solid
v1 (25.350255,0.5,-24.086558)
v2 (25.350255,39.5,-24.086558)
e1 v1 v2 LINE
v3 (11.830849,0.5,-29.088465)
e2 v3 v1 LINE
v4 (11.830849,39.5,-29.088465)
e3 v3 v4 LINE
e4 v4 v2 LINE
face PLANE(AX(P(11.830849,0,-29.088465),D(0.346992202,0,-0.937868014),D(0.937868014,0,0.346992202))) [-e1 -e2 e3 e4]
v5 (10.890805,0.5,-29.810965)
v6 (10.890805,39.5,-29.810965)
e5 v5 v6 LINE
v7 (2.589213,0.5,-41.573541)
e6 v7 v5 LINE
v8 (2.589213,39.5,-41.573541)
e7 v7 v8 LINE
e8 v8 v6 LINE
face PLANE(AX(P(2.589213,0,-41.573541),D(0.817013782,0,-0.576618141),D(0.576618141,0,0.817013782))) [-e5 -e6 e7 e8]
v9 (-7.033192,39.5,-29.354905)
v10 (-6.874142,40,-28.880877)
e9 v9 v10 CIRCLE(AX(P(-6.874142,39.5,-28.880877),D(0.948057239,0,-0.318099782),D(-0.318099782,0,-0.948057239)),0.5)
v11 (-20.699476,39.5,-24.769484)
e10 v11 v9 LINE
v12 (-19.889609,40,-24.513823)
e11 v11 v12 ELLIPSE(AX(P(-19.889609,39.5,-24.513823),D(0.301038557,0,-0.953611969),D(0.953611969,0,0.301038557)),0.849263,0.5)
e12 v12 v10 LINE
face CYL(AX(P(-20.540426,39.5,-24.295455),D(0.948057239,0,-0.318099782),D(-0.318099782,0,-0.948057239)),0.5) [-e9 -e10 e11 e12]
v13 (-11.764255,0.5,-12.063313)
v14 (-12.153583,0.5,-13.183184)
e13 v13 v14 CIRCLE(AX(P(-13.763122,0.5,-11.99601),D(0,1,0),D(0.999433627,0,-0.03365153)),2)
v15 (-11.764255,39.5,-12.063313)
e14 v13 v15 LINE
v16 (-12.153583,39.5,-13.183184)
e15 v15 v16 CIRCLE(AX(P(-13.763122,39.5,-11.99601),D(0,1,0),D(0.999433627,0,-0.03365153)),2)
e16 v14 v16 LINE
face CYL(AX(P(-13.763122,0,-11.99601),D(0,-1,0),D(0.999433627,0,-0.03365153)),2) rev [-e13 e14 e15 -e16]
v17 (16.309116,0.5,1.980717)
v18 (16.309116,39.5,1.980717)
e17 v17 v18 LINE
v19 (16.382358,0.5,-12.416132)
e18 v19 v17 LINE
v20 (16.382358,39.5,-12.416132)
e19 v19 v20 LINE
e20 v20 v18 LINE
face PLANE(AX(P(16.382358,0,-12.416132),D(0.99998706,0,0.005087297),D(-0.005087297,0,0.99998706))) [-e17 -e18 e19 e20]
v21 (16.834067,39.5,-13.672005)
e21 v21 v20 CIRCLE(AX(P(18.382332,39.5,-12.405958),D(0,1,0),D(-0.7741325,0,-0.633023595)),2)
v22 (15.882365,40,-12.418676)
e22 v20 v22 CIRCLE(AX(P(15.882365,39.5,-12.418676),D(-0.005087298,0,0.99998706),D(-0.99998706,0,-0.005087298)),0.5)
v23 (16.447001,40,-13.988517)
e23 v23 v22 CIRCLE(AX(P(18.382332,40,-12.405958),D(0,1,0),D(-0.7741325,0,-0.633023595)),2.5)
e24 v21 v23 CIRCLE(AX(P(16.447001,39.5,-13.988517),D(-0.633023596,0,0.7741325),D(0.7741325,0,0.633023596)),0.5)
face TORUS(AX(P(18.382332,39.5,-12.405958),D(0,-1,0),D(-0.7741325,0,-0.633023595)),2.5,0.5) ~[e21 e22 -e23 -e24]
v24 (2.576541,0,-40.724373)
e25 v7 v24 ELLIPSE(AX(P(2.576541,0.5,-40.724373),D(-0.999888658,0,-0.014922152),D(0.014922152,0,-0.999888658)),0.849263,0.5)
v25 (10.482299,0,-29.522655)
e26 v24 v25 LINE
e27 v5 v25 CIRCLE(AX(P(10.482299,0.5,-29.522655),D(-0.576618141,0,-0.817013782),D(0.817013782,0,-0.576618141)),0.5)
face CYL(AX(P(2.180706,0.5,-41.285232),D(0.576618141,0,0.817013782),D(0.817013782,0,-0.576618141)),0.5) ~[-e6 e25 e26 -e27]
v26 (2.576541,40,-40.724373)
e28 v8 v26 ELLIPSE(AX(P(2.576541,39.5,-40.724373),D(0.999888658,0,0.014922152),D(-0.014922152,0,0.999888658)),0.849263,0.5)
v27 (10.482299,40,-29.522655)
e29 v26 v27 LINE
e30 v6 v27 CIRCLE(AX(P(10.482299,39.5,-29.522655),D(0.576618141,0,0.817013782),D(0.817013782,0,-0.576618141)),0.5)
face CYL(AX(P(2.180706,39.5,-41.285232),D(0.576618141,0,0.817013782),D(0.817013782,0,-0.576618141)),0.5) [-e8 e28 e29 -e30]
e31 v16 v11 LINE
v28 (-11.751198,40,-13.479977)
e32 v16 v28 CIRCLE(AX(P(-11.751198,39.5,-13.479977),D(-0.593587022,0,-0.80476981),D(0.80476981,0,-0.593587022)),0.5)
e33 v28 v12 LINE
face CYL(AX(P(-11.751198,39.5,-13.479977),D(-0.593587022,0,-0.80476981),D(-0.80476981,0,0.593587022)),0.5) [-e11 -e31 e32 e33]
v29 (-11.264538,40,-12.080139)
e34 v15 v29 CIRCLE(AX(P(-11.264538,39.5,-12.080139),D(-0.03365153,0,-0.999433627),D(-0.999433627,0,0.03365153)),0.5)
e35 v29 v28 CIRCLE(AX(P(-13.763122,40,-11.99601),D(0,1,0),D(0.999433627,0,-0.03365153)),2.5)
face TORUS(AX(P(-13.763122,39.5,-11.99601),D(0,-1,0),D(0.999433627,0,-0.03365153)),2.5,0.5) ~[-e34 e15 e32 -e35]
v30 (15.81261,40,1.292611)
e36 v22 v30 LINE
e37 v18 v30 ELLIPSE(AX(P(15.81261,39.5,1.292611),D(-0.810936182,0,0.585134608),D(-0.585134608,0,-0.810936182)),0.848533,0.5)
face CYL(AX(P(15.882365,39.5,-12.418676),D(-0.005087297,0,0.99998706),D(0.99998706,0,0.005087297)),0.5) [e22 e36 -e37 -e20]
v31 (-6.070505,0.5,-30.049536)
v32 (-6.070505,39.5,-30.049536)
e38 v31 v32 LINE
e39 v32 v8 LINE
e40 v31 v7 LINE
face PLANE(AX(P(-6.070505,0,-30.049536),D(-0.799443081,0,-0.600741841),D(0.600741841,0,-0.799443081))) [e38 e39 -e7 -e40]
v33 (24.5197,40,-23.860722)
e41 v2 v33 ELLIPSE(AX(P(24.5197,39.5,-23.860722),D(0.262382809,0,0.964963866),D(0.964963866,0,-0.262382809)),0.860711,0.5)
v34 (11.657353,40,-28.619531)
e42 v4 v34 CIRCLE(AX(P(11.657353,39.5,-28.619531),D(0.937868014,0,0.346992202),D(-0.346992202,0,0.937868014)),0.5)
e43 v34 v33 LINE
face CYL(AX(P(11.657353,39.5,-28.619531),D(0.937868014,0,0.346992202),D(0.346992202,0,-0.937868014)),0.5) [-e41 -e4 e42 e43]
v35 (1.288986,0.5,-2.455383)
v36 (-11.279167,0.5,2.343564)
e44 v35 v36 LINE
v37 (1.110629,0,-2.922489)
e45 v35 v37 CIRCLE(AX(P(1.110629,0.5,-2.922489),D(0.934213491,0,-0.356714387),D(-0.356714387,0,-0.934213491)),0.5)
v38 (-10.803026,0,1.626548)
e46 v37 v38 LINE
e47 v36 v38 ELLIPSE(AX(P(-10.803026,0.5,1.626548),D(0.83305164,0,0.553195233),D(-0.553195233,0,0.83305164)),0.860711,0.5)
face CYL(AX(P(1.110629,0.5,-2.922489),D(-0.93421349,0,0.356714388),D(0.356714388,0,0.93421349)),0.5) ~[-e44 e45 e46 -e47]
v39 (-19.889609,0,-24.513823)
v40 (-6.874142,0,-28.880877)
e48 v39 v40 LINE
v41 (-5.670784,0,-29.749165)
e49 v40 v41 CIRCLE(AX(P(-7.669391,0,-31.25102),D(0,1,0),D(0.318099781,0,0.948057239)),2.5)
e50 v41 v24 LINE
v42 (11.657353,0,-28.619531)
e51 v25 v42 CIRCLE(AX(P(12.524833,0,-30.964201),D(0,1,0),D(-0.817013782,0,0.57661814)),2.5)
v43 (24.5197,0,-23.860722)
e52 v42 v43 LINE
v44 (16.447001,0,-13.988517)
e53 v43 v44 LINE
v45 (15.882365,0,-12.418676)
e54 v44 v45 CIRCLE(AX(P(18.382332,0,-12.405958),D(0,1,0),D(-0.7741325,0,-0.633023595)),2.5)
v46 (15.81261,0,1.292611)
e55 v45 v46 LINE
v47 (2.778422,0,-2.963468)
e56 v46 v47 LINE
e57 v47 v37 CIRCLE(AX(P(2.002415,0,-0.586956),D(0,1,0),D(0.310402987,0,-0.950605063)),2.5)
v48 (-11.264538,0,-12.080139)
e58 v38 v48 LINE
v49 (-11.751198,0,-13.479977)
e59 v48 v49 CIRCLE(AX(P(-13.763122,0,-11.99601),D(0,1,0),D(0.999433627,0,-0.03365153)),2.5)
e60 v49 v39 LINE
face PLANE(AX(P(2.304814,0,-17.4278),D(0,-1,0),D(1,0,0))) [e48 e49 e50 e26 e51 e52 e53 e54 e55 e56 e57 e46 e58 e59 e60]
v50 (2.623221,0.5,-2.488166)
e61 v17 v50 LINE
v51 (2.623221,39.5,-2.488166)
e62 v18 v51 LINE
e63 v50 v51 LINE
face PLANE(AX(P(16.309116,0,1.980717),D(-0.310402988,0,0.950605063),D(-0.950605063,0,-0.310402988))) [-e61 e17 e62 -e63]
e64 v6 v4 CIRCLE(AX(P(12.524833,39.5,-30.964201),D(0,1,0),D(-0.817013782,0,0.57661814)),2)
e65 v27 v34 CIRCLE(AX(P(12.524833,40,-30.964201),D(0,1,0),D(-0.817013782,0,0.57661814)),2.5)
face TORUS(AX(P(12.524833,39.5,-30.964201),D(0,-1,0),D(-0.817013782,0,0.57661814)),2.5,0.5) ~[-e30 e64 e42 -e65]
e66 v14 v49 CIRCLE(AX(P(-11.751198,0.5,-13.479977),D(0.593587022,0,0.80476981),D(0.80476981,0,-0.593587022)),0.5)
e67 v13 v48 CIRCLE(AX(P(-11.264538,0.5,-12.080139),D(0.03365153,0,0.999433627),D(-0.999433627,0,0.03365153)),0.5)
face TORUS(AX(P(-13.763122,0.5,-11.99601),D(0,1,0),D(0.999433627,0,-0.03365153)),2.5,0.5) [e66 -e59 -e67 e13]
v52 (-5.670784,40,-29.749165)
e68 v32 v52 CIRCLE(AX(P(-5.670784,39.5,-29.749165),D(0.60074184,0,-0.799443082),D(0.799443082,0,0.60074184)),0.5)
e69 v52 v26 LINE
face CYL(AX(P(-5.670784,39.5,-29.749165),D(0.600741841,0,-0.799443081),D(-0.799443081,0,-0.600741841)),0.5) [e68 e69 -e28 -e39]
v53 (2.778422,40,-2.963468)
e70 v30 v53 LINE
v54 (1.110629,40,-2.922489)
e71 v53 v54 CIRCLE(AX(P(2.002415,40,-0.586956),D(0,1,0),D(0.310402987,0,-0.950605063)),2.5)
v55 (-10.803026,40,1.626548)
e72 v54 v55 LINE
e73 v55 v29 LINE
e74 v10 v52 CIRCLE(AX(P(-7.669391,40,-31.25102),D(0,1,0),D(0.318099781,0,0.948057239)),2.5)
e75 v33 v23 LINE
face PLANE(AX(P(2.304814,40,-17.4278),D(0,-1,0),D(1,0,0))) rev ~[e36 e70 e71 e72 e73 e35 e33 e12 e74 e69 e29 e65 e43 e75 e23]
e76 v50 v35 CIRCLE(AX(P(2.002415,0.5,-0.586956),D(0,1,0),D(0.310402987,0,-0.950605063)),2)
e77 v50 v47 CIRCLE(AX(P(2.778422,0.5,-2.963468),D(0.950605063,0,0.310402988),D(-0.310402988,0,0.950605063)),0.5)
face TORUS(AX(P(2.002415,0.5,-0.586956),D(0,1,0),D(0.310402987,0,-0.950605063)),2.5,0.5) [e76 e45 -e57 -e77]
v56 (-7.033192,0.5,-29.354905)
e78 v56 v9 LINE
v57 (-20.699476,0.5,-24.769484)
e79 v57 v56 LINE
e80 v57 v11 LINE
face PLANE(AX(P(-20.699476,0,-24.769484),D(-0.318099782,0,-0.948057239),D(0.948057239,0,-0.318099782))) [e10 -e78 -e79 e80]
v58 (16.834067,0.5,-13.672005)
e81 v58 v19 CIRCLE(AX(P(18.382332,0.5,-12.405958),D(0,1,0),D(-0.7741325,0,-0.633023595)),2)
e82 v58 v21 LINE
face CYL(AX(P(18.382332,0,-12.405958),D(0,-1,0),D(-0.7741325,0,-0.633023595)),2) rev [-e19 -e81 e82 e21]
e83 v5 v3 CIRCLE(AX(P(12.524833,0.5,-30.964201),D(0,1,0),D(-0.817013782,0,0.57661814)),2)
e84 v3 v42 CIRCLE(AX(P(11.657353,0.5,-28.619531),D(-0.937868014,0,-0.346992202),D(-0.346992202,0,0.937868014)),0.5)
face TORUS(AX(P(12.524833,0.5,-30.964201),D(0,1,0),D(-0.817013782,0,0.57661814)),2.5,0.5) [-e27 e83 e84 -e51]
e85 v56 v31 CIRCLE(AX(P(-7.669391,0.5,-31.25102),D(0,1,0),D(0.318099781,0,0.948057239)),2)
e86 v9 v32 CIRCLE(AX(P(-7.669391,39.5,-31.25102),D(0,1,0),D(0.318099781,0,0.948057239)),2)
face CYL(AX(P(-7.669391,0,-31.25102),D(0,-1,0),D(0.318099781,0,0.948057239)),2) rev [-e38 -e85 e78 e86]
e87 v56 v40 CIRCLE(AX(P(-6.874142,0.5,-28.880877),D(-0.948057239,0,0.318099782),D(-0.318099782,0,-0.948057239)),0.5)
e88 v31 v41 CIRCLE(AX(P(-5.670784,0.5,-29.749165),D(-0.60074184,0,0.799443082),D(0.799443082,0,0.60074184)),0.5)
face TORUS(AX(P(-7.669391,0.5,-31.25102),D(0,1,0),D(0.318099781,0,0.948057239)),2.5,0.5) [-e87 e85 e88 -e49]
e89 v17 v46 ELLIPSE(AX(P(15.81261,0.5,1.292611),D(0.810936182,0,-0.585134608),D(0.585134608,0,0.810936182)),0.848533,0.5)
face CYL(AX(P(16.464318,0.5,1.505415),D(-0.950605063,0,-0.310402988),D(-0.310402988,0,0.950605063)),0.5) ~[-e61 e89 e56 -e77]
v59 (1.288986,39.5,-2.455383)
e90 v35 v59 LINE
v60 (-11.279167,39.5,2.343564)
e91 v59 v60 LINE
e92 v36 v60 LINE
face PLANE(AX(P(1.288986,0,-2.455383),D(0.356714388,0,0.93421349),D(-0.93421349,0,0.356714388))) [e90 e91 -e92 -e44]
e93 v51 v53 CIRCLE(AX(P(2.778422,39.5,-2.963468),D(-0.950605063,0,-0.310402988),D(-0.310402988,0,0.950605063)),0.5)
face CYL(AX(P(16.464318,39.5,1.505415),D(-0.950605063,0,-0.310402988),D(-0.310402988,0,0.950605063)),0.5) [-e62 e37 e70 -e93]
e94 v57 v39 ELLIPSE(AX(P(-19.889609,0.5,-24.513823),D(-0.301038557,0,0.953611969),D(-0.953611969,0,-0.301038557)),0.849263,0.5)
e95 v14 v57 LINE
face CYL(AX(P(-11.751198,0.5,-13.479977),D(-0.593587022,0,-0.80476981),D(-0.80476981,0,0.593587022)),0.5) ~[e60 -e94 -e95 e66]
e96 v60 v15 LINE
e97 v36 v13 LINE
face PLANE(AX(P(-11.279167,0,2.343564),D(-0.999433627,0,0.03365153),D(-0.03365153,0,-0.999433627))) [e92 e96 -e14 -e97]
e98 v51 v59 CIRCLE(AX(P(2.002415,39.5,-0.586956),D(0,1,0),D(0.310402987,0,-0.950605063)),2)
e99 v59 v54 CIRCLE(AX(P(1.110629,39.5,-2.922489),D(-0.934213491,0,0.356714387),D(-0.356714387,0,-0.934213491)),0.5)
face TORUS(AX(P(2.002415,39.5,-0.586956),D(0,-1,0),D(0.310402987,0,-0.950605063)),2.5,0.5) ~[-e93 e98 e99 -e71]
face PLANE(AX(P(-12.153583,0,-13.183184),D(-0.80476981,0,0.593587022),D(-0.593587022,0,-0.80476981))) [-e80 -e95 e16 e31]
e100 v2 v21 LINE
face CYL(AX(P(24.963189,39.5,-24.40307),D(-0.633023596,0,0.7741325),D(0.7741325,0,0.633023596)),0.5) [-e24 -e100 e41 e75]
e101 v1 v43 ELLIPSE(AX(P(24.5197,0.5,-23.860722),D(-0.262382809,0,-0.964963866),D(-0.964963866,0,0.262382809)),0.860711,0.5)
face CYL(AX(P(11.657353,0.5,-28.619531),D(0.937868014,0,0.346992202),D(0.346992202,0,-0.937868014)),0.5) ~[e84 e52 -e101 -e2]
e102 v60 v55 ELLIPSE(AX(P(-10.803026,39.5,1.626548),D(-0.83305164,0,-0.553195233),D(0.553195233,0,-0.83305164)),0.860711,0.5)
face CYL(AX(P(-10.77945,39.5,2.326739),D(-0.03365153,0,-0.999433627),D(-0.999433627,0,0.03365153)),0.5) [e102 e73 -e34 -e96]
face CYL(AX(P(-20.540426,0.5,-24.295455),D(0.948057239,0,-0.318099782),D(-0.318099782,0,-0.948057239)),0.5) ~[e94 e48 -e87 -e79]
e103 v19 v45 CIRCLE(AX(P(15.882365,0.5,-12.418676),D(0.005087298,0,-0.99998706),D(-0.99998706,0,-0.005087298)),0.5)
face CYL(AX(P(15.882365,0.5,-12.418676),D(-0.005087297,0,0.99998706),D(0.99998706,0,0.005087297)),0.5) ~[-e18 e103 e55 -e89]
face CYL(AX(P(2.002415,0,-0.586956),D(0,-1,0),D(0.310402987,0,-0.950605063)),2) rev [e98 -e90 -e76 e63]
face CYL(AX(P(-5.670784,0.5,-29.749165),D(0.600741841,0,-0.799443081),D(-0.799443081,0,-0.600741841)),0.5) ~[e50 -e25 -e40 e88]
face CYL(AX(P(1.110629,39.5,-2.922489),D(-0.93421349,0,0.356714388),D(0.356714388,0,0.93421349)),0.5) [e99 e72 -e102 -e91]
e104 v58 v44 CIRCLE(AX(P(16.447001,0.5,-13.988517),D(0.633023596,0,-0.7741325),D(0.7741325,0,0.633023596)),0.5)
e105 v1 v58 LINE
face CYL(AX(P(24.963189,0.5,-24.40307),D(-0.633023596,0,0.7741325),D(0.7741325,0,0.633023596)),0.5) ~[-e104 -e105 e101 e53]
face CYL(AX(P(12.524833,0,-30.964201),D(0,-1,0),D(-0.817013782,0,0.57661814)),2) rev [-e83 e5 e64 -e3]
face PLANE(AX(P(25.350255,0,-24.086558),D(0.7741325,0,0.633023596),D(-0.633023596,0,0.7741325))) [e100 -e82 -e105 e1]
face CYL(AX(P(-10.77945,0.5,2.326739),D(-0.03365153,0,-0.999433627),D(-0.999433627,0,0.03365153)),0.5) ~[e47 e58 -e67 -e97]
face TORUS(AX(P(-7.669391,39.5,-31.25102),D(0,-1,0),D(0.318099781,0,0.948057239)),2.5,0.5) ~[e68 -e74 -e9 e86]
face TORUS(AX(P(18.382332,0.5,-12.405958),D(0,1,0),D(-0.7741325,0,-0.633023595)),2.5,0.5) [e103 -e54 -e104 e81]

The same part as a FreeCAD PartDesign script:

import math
import FreeCAD as App
import Part
import Sketcher
Q = App.Units.Quantity


def edges_at(feature, points):
    """Names of the edges that pass closest to the given points."""
    edges = feature.Shape.Edges
    near = lambda p: min(range(len(edges)), key=lambda i: edges[i].distToShape(Part.Vertex(*p))[0])
    return sorted({f"Edge{near(p) + 1}" for p in points})

doc = App.newDocument("Part")
body = doc.addObject("PartDesign::Body", "Body")

# Sketch on XZ plane
sketch1 = doc.addObject("Sketcher::SketchObject", "Sketch")
body.addObject(sketch1)
sketch1.AttachmentSupport = (doc.XZ_Plane, [""])
sketch1.MapMode = "FlatFace"
sketch1.addGeometry([
    Part.LineSegment(App.Vector(16.309116, 1.980717, 0), App.Vector(16.382358, -12.416132, 0)),  # 0
    Part.ArcOfCircle(Part.Circle(App.Vector(18.382332, -12.405958, 0), App.Vector(0, 0, 1), 2), math.radians(-179.708518), math.radians(-140.726448)),  # 1
    Part.LineSegment(App.Vector(16.834067, -13.672005, 0), App.Vector(25.350255, -24.086558, 0)),  # 2
    Part.LineSegment(App.Vector(25.350255, -24.086558, 0), App.Vector(11.830849, -29.088465, 0)),  # 3
    Part.ArcOfCircle(Part.Circle(App.Vector(12.524833, -30.964201, 0), App.Vector(0, 0, 1), 2), math.radians(110.303455), math.radians(144.78697)),  # 4
    Part.LineSegment(App.Vector(10.890805, -29.810965, 0), App.Vector(2.589213, -41.573541, 0)),  # 5
    Part.LineSegment(App.Vector(2.589213, -41.573541, 0), App.Vector(-6.070505, -30.049536, 0)),  # 6
    Part.ArcOfCircle(Part.Circle(App.Vector(-7.669391, -31.25102, 0), App.Vector(0, 0, 1), 2), math.radians(36.923047), math.radians(71.451953)),  # 7
    Part.LineSegment(App.Vector(-7.033192, -29.354905, 0), App.Vector(-20.699476, -24.769484, 0)),  # 8
    Part.LineSegment(App.Vector(-20.699476, -24.769484, 0), App.Vector(-12.153583, -13.183184, 0)),  # 9
    Part.ArcOfCircle(Part.Circle(App.Vector(-13.763122, -11.99601, 0), App.Vector(0, 0, 1), 2), math.radians(-36.41197), math.radians(-1.928455)),  # 10
    Part.LineSegment(App.Vector(-11.764255, -12.063313, 0), App.Vector(-11.279167, 2.343564, 0)),  # 11
    Part.LineSegment(App.Vector(-11.279167, 2.343564, 0), App.Vector(1.288986, -2.455383, 0)),  # 12
    Part.ArcOfCircle(Part.Circle(App.Vector(2.002415, -0.586956, 0), App.Vector(0, 0, 1), 2), math.radians(-110.898552), math.radians(-71.916482)),  # 13
    Part.LineSegment(App.Vector(2.623221, -2.488166, 0), App.Vector(16.309116, 1.980717, 0)),  # 14
], False)
sketch1.addConstraint([
    Sketcher.Constraint("Coincident", 0, 2, 1, 1),
    Sketcher.Constraint("Coincident", 1, 2, 2, 1),
    Sketcher.Constraint("Coincident", 2, 2, 3, 1),
    Sketcher.Constraint("Coincident", 3, 2, 4, 1),
    Sketcher.Constraint("Coincident", 4, 2, 5, 1),
    Sketcher.Constraint("Coincident", 5, 2, 6, 1),
    Sketcher.Constraint("Coincident", 6, 2, 7, 1),
    Sketcher.Constraint("Coincident", 7, 2, 8, 1),
    Sketcher.Constraint("Coincident", 8, 2, 9, 1),
    Sketcher.Constraint("Coincident", 9, 2, 10, 1),
    Sketcher.Constraint("Coincident", 10, 2, 11, 1),
    Sketcher.Constraint("Coincident", 11, 2, 12, 1),
    Sketcher.Constraint("Coincident", 12, 2, 13, 1),
    Sketcher.Constraint("Coincident", 13, 2, 14, 1),
    Sketcher.Constraint("Coincident", 14, 2, 0, 1),
    Sketcher.Constraint("Radius", 1, Q("2 mm")),
    Sketcher.Constraint("Radius", 4, Q("2 mm")),
    Sketcher.Constraint("Radius", 7, Q("2 mm")),
    Sketcher.Constraint("Radius", 10, Q("2 mm")),
    Sketcher.Constraint("Radius", 13, Q("2 mm")),
    Sketcher.Constraint("DistanceY", 4, 3, -1, 1, Q("30.964201 mm")),
    Sketcher.Constraint("DistanceX", 4, 3, 1, 3, Q("5.857499 mm")),
    Sketcher.Constraint("DistanceY", 2, 2, 1, 3, Q("11.6806 mm")),
    Sketcher.Constraint("DistanceY", 4, 2, 3, 2, Q("0.7225 mm")),
    Sketcher.Constraint("DistanceX", 7, 3, 7, 2, Q("0.6362 mm")),
    Sketcher.Constraint("DistanceY", 8, 2, 9, 2, Q("11.5863 mm")),
    Sketcher.Constraint("DistanceY", 9, 2, 12, 2, Q("10.727801 mm")),
    Sketcher.Constraint("DistanceX", 13, 3, 14, 2, Q("14.306701 mm")),
    Sketcher.Constraint("DistanceY", 12, 2, 14, 2, Q("4.4361 mm")),
    Sketcher.Constraint("Distance", 2, Q("13.453192 mm")),
    Sketcher.Constraint("Distance", 3, Q("14.415042 mm")),
    Sketcher.Constraint("Distance", 6, Q("14.415042 mm")),
    Sketcher.Constraint("Distance", 8, Q("14.415042 mm")),
    Sketcher.Constraint("Distance", 11, Q("14.415042 mm")),
    Sketcher.Constraint("Distance", 12, Q("13.453192 mm")),
    Sketcher.Constraint("DistanceX", 7, 3, -1, 1, Q("7.669391 mm")),
    Sketcher.Constraint("DistanceY", 7, 3, -1, 1, Q("31.25102 mm")),
    Sketcher.Constraint("DistanceY", 10, 3, -1, 1, Q("11.99601 mm")),
    Sketcher.Constraint("DistanceX", -1, 1, 0, 2, Q("16.382358 mm")),
    Sketcher.Constraint("DistanceX", -1, 1, 3, 2, Q("11.830849 mm")),
    Sketcher.Constraint("DistanceY", 5, 2, -1, 1, Q("41.573541 mm")),
    Sketcher.Constraint("DistanceX", -1, 1, 13, 2, Q("2.623221 mm")),
    Sketcher.Constraint("DistanceY", 7, 3, 1, 3, Q("18.845062 mm")),
    Sketcher.Constraint("DistanceX", 10, 3, 7, 3, Q("6.093731 mm")),
    Sketcher.Constraint("DistanceX", 13, 3, 4, 3, Q("10.522418 mm")),
    Sketcher.Constraint("DistanceY", 4, 3, 0, 2, Q("18.548068 mm")),
    Sketcher.Constraint("DistanceY", 1, 2, 13, 3, Q("13.085049 mm")),
    Sketcher.Constraint("DistanceX", 5, 2, 4, 3, Q("9.93562 mm")),
    Sketcher.Constraint("DistanceY", 7, 2, 8, 2, Q("4.585422 mm")),
    Sketcher.Constraint("DistanceY", 9, 2, 10, 2, Q("1.119871 mm")),
])
pad1 = doc.addObject("PartDesign::Pad", "Pad")
body.addObject(pad1)
pad1.Profile = sketch1
pad1.Length = 40
pad1.Reversed = True
doc.recompute()

fillet = doc.addObject("PartDesign::Fillet", "Fillet")
body.addObject(fillet)
fillet.Base = (pad1, edges_at(pad1, [
    (18.591, 40, -26.588),
    (16.346, 0, -5.218),
    (9.466, 0, -0.254),
    (1.953, 0, -2.586),
    (-4.995, 0, -0.056),
    (-11.522, 0, -4.86),
    (-11.874, 0, -12.653),
    (11.306, 40, -29.378),
    (-16.427, 0, -18.976),
    (-13.866, 0, -27.062),
    (-6.499, 0, -29.629),
    (-1.741, 0, -35.812),
    (6.74, 0, -35.692),
    (11.306, 0, -29.378),
    (18.591, 0, -26.588),
    (21.092, 0, -18.879),
    (16.5, 0, -13.083),
    (6.74, 40, -35.692),
    (-1.741, 40, -35.812),
    (-6.499, 40, -29.629),
    (-13.866, 40, -27.062),
    (-16.427, 40, -18.976),
    (-11.874, 40, -12.653),
    (-11.522, 40, -4.86),
    (-4.995, 40, -0.056),
    (16.5, 40, -13.083),
    (1.953, 40, -2.586),
    (9.466, 40, -0.254),
    (16.346, 40, -5.218),
    (21.092, 40, -18.879),
]))
fillet.Radius = 0.5

doc.recompute()
